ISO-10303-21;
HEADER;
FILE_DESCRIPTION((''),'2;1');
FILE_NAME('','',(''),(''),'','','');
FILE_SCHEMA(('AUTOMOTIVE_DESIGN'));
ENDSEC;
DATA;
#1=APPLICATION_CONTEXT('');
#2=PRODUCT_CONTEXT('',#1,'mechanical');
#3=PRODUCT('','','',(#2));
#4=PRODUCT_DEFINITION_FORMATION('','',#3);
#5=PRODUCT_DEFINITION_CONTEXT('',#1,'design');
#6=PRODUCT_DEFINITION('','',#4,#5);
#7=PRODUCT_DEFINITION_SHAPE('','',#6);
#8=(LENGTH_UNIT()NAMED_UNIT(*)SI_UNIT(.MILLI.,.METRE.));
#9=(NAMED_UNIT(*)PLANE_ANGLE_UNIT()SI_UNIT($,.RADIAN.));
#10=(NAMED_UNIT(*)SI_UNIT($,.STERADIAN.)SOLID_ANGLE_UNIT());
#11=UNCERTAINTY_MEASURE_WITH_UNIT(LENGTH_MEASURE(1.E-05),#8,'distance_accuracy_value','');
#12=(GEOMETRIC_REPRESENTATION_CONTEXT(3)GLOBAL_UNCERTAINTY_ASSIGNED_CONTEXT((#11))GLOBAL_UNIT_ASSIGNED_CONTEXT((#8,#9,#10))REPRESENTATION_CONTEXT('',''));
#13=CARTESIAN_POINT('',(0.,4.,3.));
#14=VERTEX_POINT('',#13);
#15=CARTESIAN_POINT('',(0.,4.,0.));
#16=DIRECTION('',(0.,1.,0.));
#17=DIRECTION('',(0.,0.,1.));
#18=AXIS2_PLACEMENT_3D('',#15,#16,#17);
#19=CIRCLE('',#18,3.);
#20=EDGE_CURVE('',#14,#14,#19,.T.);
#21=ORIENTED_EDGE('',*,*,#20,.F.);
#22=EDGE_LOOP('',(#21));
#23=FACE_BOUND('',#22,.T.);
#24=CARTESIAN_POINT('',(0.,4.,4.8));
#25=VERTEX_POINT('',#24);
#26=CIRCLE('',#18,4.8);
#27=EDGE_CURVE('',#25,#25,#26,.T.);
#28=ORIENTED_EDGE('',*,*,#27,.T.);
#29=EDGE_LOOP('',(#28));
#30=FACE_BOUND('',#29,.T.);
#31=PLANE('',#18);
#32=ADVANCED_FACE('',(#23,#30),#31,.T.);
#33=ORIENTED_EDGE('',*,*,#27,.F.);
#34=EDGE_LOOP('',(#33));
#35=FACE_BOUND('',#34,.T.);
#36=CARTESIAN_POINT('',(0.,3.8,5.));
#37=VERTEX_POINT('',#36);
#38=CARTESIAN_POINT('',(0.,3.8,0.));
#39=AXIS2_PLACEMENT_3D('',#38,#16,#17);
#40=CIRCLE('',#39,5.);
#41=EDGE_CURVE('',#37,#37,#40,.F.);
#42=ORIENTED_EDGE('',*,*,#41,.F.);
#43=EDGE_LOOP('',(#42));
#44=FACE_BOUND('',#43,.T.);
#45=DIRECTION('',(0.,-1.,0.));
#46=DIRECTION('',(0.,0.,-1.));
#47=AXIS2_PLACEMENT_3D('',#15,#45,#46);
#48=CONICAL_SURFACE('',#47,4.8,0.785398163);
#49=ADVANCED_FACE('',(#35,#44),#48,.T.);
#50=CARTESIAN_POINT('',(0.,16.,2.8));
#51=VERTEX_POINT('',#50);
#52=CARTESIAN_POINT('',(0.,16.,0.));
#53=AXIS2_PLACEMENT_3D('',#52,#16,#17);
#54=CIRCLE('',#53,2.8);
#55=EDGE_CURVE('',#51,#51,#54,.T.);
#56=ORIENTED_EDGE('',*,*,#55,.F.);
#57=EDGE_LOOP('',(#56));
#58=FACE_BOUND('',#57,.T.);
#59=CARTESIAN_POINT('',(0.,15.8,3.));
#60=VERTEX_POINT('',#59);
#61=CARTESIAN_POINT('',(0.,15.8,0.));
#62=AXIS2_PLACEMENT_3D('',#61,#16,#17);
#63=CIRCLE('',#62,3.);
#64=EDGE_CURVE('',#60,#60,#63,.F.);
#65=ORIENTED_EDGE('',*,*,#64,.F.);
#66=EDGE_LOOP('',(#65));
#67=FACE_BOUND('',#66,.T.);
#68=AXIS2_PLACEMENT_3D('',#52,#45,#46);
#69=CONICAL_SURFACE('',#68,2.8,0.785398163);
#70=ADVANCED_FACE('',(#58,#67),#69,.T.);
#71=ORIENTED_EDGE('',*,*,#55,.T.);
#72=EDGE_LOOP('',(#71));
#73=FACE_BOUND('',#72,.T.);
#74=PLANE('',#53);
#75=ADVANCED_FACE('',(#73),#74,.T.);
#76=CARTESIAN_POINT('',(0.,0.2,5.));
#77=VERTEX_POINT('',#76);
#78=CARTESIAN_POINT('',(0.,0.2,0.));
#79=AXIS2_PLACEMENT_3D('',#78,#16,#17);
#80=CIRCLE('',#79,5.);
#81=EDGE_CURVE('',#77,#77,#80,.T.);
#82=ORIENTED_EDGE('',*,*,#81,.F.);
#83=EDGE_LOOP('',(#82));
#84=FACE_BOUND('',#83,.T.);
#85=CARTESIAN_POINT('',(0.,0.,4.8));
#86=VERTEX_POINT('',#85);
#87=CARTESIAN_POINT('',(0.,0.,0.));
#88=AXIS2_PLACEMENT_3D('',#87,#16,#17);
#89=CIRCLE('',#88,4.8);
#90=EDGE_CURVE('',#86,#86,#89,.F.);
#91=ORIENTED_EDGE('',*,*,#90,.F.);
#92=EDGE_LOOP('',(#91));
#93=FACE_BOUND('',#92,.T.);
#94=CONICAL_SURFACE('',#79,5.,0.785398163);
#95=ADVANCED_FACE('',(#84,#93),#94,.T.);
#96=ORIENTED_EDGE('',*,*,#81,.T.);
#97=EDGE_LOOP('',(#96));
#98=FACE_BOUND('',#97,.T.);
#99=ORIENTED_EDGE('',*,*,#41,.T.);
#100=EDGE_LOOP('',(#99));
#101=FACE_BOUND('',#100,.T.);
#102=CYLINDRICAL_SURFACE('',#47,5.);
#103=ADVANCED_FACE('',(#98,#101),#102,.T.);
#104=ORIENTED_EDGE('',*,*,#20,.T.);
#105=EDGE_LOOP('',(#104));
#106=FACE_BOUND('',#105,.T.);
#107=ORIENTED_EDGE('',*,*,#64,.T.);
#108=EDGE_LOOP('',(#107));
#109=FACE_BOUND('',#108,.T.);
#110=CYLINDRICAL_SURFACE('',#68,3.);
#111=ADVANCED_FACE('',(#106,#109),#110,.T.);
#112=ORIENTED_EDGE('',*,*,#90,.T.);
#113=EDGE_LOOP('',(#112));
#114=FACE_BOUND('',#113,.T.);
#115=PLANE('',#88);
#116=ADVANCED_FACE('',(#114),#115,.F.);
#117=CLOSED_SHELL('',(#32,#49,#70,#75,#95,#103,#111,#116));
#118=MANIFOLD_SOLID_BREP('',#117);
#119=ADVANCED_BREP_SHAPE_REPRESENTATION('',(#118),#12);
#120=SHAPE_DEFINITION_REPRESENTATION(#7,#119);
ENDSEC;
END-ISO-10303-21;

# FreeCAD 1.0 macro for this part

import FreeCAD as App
import Part
import Sketcher

V = App.Vector
Q = App.Units.Quantity


def edges_at(feature, points):
    """Names of the edges that pass closest to the given points."""
    edges = feature.Shape.Edges
    near = lambda p: min(range(len(edges)), key=lambda i: edges[i].distToShape(Part.Vertex(*p))[0])
    return sorted({f"Edge{near(p) + 1}" for p in points})

doc = App.newDocument("Part")
body = doc.addObject("PartDesign::Body", "Body")

# Sketch on XZ plane
sketch1 = body.newObject("Sketcher::SketchObject", "Sketch")
sketch1.AttachmentSupport = (doc.getObject("XZ_Plane"), [""])
sketch1.MapMode = "FlatFace"
sketch1.addGeometry(Part.Circle(V(0, 0, 0), V(0, 0, 1), 5), False)
sketch1.addConstraint([
    Sketcher.Constraint("Coincident", 0, 3, -1, 1),
    Sketcher.Constraint("Diameter", 0, Q("10 mm")),
])
pad1 = body.newObject("PartDesign::Pad", "Pad")
pad1.Profile = sketch1
pad1.Length = 4
pad1.Reversed = True

# Sketch on XZ plane
sketch2 = body.newObject("Sketcher::SketchObject", "Sketch001")
sketch2.AttachmentSupport = (doc.getObject("XZ_Plane"), [""])
sketch2.MapMode = "FlatFace"
sketch2.AttachmentOffset = App.Placement(V(0, 0, -4), App.Rotation())
sketch2.addGeometry(Part.Circle(V(0, 0, 0), V(0, 0, 1), 3), False)
sketch2.addConstraint([
    Sketcher.Constraint("Coincident", 0, 3, -1, 1),
    Sketcher.Constraint("Diameter", 0, Q("6 mm")),
])
pad2 = body.newObject("PartDesign::Pad", "Pad001")
pad2.Profile = sketch2
pad2.Length = 12
pad2.Reversed = True
doc.recompute()

chamfer = body.newObject("PartDesign::Chamfer", "Chamfer")
chamfer.Base = (pad2, edges_at(pad2, [(-5, 0, 0), (-5, 4, 0), (-3, 16, 0)]))
chamfer.Size = 0.2

doc.recompute()
